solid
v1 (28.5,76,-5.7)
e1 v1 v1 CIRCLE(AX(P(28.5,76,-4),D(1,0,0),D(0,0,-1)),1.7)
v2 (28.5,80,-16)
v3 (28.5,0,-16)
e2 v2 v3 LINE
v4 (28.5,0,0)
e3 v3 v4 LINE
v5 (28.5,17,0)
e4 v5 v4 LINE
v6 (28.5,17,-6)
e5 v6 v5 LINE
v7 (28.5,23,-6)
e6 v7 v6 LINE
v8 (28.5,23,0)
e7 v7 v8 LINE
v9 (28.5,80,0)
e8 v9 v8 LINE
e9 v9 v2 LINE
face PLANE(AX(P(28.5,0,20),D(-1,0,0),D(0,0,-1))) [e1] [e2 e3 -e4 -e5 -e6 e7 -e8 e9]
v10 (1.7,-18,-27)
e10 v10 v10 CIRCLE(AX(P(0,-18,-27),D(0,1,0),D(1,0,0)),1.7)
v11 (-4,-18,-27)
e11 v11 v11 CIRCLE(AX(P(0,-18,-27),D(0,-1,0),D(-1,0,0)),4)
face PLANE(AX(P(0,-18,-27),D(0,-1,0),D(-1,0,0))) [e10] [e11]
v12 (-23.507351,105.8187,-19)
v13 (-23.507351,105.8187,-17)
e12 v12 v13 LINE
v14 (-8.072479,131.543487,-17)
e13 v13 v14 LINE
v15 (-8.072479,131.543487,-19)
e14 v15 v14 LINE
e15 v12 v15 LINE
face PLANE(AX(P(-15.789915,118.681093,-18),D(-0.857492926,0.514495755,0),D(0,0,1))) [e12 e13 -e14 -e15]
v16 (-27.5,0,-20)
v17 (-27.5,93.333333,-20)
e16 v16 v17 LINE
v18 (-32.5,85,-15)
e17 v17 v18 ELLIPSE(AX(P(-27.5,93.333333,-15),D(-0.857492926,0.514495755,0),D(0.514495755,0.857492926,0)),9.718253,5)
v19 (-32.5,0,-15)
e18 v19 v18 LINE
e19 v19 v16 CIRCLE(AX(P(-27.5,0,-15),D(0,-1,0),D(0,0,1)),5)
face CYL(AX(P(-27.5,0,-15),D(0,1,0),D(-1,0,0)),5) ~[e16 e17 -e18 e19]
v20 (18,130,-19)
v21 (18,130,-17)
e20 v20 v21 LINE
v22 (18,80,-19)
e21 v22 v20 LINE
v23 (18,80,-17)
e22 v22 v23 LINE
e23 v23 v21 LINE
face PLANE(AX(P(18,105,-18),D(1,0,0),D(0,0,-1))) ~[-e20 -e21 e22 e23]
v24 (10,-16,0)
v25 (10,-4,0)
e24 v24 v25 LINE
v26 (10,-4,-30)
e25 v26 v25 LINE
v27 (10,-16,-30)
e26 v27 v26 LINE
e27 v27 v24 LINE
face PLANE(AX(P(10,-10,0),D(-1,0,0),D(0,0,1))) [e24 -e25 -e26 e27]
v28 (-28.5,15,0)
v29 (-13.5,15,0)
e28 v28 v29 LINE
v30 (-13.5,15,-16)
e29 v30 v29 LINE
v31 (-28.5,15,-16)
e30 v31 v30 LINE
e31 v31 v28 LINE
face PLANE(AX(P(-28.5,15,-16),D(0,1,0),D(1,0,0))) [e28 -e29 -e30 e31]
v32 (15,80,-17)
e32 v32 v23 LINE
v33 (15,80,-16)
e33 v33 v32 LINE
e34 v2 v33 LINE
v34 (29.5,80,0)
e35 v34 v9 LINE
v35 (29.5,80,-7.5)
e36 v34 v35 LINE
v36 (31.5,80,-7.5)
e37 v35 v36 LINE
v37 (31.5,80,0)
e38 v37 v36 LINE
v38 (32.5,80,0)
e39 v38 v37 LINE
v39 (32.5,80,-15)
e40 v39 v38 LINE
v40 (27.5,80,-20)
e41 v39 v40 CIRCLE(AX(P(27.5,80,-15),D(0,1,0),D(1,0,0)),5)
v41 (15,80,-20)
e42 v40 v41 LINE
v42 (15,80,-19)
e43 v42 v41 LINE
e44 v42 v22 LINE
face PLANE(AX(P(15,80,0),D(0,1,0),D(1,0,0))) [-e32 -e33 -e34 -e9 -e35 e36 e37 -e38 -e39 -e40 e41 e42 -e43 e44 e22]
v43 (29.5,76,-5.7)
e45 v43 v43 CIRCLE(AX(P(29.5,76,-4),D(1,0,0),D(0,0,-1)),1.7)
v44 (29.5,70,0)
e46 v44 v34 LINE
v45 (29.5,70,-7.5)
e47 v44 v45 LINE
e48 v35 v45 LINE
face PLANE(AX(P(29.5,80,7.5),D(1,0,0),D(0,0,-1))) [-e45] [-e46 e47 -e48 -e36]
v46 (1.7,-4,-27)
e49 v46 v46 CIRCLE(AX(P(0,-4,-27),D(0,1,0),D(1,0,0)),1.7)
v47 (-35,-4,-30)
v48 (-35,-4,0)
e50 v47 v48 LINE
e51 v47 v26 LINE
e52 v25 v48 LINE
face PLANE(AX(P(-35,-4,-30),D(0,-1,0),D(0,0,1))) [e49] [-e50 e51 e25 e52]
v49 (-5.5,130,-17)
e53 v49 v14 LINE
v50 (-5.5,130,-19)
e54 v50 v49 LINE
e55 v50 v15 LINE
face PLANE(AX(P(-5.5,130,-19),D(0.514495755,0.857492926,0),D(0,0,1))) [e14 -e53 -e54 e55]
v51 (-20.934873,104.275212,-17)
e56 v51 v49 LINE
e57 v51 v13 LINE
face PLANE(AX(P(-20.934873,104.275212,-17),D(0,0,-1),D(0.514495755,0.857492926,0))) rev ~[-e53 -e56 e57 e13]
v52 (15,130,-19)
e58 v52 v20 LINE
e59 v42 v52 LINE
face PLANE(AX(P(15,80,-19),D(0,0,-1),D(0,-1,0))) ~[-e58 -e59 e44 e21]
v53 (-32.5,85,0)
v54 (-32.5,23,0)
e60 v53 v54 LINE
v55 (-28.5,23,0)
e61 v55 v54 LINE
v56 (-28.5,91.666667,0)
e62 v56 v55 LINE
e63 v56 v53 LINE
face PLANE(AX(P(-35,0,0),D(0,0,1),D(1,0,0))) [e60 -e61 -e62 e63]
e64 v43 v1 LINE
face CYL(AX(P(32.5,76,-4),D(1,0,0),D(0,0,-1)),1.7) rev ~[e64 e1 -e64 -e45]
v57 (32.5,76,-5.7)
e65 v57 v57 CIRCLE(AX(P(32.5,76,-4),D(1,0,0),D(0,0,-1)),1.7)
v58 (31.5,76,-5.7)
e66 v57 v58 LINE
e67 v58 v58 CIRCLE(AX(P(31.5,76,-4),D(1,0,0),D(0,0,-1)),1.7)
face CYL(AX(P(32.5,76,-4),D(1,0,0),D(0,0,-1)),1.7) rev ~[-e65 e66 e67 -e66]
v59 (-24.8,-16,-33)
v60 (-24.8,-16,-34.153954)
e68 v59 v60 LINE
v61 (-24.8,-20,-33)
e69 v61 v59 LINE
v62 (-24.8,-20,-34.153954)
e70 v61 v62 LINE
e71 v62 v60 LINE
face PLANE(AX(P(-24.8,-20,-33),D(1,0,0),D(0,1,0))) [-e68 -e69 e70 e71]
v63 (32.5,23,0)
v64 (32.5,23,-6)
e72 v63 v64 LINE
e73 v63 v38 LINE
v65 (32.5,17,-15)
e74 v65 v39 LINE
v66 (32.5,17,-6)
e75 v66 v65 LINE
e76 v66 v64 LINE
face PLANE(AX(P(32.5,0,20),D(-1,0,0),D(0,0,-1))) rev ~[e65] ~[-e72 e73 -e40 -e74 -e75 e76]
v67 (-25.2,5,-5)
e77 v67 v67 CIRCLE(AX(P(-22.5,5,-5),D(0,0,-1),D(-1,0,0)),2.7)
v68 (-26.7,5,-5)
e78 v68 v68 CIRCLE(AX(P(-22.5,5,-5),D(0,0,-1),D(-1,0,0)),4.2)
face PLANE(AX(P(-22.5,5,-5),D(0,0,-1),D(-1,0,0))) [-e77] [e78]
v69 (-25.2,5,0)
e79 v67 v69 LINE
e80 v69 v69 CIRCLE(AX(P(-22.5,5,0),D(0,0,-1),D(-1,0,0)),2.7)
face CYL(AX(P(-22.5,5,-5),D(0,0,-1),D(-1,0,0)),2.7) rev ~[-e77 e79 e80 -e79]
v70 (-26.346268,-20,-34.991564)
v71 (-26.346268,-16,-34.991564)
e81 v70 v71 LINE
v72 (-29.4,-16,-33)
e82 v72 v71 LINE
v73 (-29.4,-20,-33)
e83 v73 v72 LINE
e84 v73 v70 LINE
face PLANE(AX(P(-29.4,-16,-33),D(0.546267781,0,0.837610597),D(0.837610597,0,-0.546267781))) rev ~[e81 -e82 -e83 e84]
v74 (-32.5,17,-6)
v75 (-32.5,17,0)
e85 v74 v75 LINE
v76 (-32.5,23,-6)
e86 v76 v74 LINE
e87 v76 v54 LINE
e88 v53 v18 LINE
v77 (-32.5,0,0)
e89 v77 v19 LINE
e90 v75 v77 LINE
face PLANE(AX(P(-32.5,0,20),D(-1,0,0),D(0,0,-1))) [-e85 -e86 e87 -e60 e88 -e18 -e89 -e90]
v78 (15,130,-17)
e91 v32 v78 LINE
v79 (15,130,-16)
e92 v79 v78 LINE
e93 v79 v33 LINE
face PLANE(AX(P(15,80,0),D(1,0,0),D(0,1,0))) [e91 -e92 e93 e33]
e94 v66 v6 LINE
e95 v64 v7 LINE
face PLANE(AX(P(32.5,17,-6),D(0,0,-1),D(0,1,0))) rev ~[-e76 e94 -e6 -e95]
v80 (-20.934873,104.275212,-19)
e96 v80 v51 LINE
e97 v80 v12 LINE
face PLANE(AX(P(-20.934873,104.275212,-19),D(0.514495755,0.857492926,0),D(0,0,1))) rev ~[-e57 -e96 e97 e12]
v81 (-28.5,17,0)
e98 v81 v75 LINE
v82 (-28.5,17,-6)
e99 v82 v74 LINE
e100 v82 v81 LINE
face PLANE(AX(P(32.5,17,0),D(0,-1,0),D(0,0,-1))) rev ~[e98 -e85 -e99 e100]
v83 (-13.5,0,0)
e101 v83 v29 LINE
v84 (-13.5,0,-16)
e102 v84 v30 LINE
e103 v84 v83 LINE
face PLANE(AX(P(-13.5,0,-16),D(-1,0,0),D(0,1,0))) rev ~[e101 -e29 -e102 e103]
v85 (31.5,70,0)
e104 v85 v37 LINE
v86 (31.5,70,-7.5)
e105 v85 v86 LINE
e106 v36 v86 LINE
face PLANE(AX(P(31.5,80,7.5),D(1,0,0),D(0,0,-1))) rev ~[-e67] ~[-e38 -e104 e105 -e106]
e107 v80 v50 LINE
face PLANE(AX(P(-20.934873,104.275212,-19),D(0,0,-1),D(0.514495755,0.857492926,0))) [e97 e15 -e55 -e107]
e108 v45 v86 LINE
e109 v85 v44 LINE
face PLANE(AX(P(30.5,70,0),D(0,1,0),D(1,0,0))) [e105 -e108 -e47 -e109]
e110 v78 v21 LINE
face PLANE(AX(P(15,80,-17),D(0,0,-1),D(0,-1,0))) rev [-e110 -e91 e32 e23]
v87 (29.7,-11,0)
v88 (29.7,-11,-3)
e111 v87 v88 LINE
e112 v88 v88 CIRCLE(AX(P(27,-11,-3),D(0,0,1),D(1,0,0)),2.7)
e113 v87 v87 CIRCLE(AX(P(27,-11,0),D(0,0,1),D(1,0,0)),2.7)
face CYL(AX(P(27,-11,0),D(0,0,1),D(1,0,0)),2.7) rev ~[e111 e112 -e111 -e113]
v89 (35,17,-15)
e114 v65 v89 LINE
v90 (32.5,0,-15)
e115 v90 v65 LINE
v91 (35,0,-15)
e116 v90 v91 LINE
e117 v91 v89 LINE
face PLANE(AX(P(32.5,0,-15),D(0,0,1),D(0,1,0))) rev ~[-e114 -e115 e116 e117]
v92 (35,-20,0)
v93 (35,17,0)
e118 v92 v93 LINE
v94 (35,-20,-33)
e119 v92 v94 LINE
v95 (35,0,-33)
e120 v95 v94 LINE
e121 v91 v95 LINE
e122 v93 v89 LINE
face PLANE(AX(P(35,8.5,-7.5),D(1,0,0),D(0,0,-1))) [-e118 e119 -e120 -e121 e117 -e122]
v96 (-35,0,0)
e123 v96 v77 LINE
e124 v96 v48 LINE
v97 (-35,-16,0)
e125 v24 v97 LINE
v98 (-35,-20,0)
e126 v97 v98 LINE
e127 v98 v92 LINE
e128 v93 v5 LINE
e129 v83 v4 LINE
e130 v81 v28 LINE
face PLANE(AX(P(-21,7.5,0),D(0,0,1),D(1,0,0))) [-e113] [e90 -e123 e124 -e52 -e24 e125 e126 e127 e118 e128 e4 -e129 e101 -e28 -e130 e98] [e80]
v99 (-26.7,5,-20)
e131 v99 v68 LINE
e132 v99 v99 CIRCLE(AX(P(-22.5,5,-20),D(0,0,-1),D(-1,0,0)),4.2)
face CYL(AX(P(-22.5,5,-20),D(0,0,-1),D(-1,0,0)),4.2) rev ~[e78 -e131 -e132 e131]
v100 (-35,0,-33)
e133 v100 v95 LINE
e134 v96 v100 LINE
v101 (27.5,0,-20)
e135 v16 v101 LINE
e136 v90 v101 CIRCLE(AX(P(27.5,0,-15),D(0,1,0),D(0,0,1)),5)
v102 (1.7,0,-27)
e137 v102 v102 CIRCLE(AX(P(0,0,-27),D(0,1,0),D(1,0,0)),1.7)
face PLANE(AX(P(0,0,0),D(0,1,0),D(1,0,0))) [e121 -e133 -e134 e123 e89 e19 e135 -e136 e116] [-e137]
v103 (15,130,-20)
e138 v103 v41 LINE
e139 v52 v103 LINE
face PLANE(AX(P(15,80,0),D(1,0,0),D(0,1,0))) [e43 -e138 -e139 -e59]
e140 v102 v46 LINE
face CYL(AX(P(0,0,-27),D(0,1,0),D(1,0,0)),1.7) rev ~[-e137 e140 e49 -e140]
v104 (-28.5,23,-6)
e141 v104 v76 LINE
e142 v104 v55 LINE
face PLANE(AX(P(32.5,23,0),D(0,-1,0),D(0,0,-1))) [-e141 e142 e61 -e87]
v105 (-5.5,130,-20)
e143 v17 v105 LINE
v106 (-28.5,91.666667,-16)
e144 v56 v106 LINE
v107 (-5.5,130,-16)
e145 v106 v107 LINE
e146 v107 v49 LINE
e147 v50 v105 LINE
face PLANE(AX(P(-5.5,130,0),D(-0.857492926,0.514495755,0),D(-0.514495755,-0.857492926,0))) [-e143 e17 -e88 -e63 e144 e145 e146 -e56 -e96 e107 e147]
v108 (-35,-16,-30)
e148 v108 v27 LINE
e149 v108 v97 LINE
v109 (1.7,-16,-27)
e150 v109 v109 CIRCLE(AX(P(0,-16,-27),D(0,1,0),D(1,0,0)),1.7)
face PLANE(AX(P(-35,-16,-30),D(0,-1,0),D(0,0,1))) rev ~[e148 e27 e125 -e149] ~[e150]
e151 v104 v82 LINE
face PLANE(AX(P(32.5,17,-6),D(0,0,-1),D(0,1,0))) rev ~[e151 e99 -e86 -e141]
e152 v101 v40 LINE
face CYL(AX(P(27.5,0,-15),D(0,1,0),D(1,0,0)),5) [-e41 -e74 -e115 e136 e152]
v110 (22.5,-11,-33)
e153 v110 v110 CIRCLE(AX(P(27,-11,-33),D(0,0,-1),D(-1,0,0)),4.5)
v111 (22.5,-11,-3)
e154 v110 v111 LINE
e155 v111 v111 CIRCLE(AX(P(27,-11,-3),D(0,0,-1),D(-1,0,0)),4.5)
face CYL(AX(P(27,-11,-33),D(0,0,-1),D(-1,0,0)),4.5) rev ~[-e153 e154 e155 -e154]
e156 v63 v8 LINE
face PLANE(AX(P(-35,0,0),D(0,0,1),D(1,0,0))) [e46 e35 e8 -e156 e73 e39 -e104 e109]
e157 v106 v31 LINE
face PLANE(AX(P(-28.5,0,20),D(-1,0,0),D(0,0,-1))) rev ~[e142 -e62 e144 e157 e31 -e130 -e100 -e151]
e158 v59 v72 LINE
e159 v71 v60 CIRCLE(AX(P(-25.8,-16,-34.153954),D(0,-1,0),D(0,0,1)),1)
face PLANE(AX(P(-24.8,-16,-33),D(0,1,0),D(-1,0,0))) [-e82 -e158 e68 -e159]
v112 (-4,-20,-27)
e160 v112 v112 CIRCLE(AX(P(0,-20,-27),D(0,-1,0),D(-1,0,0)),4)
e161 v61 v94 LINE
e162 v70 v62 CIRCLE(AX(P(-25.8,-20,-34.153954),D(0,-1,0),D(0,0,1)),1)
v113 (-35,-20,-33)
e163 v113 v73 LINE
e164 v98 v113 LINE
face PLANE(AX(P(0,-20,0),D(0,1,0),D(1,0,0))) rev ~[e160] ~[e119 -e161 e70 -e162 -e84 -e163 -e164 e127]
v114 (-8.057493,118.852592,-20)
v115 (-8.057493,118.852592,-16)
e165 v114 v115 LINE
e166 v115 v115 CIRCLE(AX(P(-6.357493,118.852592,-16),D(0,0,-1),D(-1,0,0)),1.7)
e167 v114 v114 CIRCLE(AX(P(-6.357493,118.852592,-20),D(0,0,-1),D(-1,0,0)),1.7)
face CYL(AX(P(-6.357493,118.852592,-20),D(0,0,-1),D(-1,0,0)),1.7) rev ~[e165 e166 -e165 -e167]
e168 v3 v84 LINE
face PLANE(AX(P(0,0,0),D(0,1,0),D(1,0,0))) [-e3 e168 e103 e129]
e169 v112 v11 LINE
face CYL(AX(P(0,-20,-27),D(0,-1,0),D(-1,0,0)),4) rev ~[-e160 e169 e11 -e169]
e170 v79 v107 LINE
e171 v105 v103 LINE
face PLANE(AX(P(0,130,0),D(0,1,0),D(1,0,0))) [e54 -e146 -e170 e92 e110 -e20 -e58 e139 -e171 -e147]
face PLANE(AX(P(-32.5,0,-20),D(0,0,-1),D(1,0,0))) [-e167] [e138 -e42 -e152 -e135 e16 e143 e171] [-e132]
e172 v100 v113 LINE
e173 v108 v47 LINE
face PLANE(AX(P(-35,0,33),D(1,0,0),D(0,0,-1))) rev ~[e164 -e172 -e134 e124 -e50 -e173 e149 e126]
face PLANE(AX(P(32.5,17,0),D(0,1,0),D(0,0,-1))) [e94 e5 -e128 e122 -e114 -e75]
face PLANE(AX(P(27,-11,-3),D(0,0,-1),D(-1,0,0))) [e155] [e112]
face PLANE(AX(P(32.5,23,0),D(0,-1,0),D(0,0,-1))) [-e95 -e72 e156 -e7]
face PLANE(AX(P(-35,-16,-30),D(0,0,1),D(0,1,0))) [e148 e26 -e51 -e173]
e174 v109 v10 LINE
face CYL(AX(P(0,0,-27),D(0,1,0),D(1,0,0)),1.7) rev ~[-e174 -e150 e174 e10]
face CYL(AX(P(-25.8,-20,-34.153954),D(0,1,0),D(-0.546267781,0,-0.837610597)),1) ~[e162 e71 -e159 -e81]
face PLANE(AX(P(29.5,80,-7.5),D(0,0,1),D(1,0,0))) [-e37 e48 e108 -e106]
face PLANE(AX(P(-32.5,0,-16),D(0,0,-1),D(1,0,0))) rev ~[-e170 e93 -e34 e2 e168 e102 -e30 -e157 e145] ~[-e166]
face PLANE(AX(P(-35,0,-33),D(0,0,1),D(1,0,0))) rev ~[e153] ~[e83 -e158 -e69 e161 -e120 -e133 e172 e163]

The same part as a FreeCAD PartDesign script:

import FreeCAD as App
import Part
import Sketcher

V = App.Vector
Q = App.Units.Quantity


def edges_at(feature, points):
    """Names of the edges that pass closest to the given points."""
    edges = feature.Shape.Edges
    near = lambda p: min(range(len(edges)), key=lambda i: edges[i].distToShape(Part.Vertex(*p))[0])
    return sorted({f"Edge{near(p) + 1}" for p in points})


def faces_at(feature, points):
    """Names of the faces that lie closest to the given points."""
    faces = feature.Shape.Faces
    near = lambda p: min(range(len(faces)), key=lambda i: faces[i].distToShape(Part.Vertex(*p))[0])
    return sorted({f"Face{near(p) + 1}" for p in points})

doc = App.newDocument("Part")
body = doc.addObject("PartDesign::Body", "Body")

# Sketch on XZ plane
sketch1 = body.newObject("Sketcher::SketchObject", "Sketch")
sketch1.AttachmentSupport = (doc.getObject("XZ_Plane"), [""])
sketch1.MapMode = "FlatFace"
sketch1.addGeometry([
    Part.LineSegment(V(-32, -20, 0), V(-32, 20, 0)),
    Part.LineSegment(V(-32, 20, 0), V(32, 20, 0)),
    Part.LineSegment(V(32, 20, 0), V(32, -20, 0)),
    Part.LineSegment(V(32, -20, 0), V(-32, -20, 0)),
], False)
sketch1.addConstraint([
    Sketcher.Constraint("Coincident", 0, 2, 1, 1),
    Sketcher.Constraint("Coincident", 1, 2, 2, 1),
    Sketcher.Constraint("Coincident", 2, 2, 3, 1),
    Sketcher.Constraint("Coincident", 3, 2, 0, 1),
    Sketcher.Constraint("Vertical", 0),
    Sketcher.Constraint("Horizontal", 1),
    Sketcher.Constraint("Vertical", 2),
    Sketcher.Constraint("Horizontal", 3),
    Sketcher.Constraint("Symmetric", 0, 2, 2, 2, -1, 1),
    Sketcher.Constraint("DistanceX", 1, 1, 1, 2, Q("65 mm")),
    Sketcher.Constraint("DistanceY", 0, 1, 0, 2, Q("40 mm")),
])
pad1 = body.newObject("PartDesign::Pad", "Pad")
pad1.Profile = sketch1
pad1.Length = 130
pad1.Reversed = True
doc.recompute()

thickness = body.newObject("PartDesign::Thickness", "Thickness")
thickness.Base = (pad1, faces_at(pad1, [(0, 130, 0), (0, 0, 0)]))
thickness.Value = 4
thickness.Reversed = True
thickness.Join = "Intersection"
doc.recompute()

fillet = body.newObject("PartDesign::Fillet", "Fillet")
fillet.Base = (thickness, edges_at(thickness, [
    (32.5, 65, 20),
    (-32.5, 65, 20),
    (-32.5, 65, -20),
    (32.5, 65, -20),
]))
fillet.Radius = 5

# Sketch on XY plane
sketch2 = body.newObject("Sketcher::SketchObject", "Sketch001")
sketch2.AttachmentSupport = (doc.getObject("XY_Plane"), [""])
sketch2.MapMode = "FlatFace"
sketch2.addGeometry([
    Part.LineSegment(V(-32, 85, 0), V(-6, 130, 0)),
    Part.LineSegment(V(-6, 130, 0), V(-32, 130, 0)),
    Part.LineSegment(V(-32, 130, 0), V(-32, 85, 0)),
], False)
sketch2.addConstraint([
    Sketcher.Constraint("Coincident", 0, 2, 1, 1),
    Sketcher.Constraint("Coincident", 1, 2, 2, 1),
    Sketcher.Constraint("Coincident", 2, 2, 0, 1),
    Sketcher.Constraint("Horizontal", 1),
    Sketcher.Constraint("Vertical", 2),
    Sketcher.Constraint("DistanceX", 1, 2, 1, 1, Q("27 mm")),
    Sketcher.Constraint("DistanceY", 2, 2, 2, 1, Q("45 mm")),
    Sketcher.Constraint("DistanceY", -1, 1, 0, 2, Q("130 mm")),
    Sketcher.Constraint("DistanceX", 0, 2, -1, 1, Q("5.5 mm")),
])
pocket1 = body.newObject("PartDesign::Pocket", "Pocket")
pocket1.Profile = sketch2
pocket1.Type = "ThroughAll"
pocket1.Midplane = True

# Sketch on XY plane
sketch3 = body.newObject("Sketcher::SketchObject", "Sketch002")
sketch3.AttachmentSupport = (doc.getObject("XY_Plane"), [""])
sketch3.MapMode = "FlatFace"
sketch3.addGeometry([
    Part.LineSegment(V(15, 130, 0), V(15, 80, 0)),
    Part.LineSegment(V(15, 80, 0), V(32, 80, 0)),
    Part.LineSegment(V(32, 80, 0), V(32, 130, 0)),
    Part.LineSegment(V(32, 130, 0), V(15, 130, 0)),
], False)
sketch3.addConstraint([
    Sketcher.Constraint("Coincident", 0, 2, 1, 1),
    Sketcher.Constraint("Coincident", 1, 2, 2, 1),
    Sketcher.Constraint("Coincident", 2, 2, 3, 1),
    Sketcher.Constraint("Coincident", 3, 2, 0, 1),
    Sketcher.Constraint("Vertical", 0),
    Sketcher.Constraint("Horizontal", 1),
    Sketcher.Constraint("Vertical", 2),
    Sketcher.Constraint("Horizontal", 3),
    Sketcher.Constraint("DistanceY", 0, 2, 0, 1, Q("50 mm")),
    Sketcher.Constraint("DistanceX", 1, 1, 1, 2, Q("17.5 mm")),
    Sketcher.Constraint("DistanceX", -1, 1, 0, 2, Q("15 mm")),
    Sketcher.Constraint("DistanceY", -1, 1, 0, 2, Q("80 mm")),
])
pocket2 = body.newObject("PartDesign::Pocket", "Pocket001")
pocket2.Profile = sketch3
pocket2.Type = "ThroughAll"
pocket2.Midplane = True

# Sketch on YZ plane
sketch4 = body.newObject("Sketcher::SketchObject", "Sketch003")
sketch4.AttachmentSupport = (doc.getObject("YZ_Plane"), [""])
sketch4.MapMode = "FlatFace"
sketch4.AttachmentOffset = App.Placement(V(0, 0, 15), App.Rotation())
sketch4.addGeometry([
    Part.LineSegment(V(130, 19, 0), V(80, 19, 0)),
    Part.LineSegment(V(80, 19, 0), V(80, 17, 0)),
    Part.LineSegment(V(80, 17, 0), V(130, 17, 0)),
    Part.LineSegment(V(130, 17, 0), V(130, 19, 0)),
], False)
sketch4.addConstraint([
    Sketcher.Constraint("Coincident", 0, 2, 1, 1),
    Sketcher.Constraint("Coincident", 1, 2, 2, 1),
    Sketcher.Constraint("Coincident", 2, 2, 3, 1),
    Sketcher.Constraint("Coincident", 3, 2, 0, 1),
    Sketcher.Constraint("Horizontal", 0),
    Sketcher.Constraint("Vertical", 1),
    Sketcher.Constraint("Horizontal", 2),
    Sketcher.Constraint("Vertical", 3),
    Sketcher.Constraint("DistanceX", 0, 2, 0, 1, Q("50 mm")),
    Sketcher.Constraint("DistanceY", 1, 2, 1, 1, Q("2 mm")),
    Sketcher.Constraint("DistanceX", -1, 1, 0, 2, Q("80 mm")),
    Sketcher.Constraint("DistanceY", -1, 1, 0, 2, Q("19 mm")),
])
pad2 = body.newObject("PartDesign::Pad", "Pad001")
pad2.Profile = sketch4
pad2.Length = 3
doc.recompute()

mirrored = body.newObject("PartDesign::Mirrored", "Mirrored")
mirrored.Originals = [pad2]
mirrored.MirrorPlane = (doc.getObject("XY_Plane"), [""])
body.Tip = mirrored

# Sketch on an angled plane
sketch5 = body.newObject("Sketcher::SketchObject", "Sketch004")
sketch5.Placement = App.Placement(V(-61.397059, 36.838235, 0), App.Rotation(V(0, 0, 1), V(0.514495755, 0.857492926, 0), V(-0.857492926, 0.514495755, 0), "ZXY"))
sketch5.addGeometry([
    Part.LineSegment(V(-19, 108.6, 0), V(-19, 78.6, 0)),
    Part.LineSegment(V(-19, 78.6, 0), V(-17, 78.6, 0)),
    Part.LineSegment(V(-17, 78.6, 0), V(-17, 108.6, 0)),
    Part.LineSegment(V(-17, 108.6, 0), V(-19, 108.6, 0)),
], False)
sketch5.addConstraint([
    Sketcher.Constraint("Coincident", 0, 2, 1, 1),
    Sketcher.Constraint("Coincident", 1, 2, 2, 1),
    Sketcher.Constraint("Coincident", 2, 2, 3, 1),
    Sketcher.Constraint("Coincident", 3, 2, 0, 1),
    Sketcher.Constraint("Vertical", 0),
    Sketcher.Constraint("Horizontal", 1),
    Sketcher.Constraint("Vertical", 2),
    Sketcher.Constraint("Horizontal", 3),
    Sketcher.Constraint("DistanceX", 1, 1, 1, 2, Q("2 mm")),
    Sketcher.Constraint("DistanceY", 0, 2, 0, 1, Q("30 mm")),
    Sketcher.Constraint("DistanceX", 0, 2, -1, 1, Q("19 mm")),
    Sketcher.Constraint("DistanceY", -1, 1, 0, 2, Q("78.644354 mm")),
])
pad3 = body.newObject("PartDesign::Pad", "Pad002")
pad3.Profile = sketch5
pad3.Length = 3
doc.recompute()

mirrored2 = body.newObject("PartDesign::Mirrored", "Mirrored001")
mirrored2.Originals = [pad3]
mirrored2.MirrorPlane = (doc.getObject("XY_Plane"), [""])
body.Tip = mirrored2

# Sketch on XZ plane
sketch6 = body.newObject("Sketcher::SketchObject", "Sketch005")
sketch6.AttachmentSupport = (doc.getObject("XZ_Plane"), [""])
sketch6.MapMode = "FlatFace"
sketch6.addGeometry([
    Part.LineSegment(V(-35, -33, 0), V(-35, 33, 0)),
    Part.LineSegment(V(-35, 33, 0), V(35, 33, 0)),
    Part.LineSegment(V(35, 33, 0), V(35, -33, 0)),
    Part.LineSegment(V(35, -33, 0), V(-35, -33, 0)),
], False)
sketch6.addConstraint([
    Sketcher.Constraint("Coincident", 0, 2, 1, 1),
    Sketcher.Constraint("Coincident", 1, 2, 2, 1),
    Sketcher.Constraint("Coincident", 2, 2, 3, 1),
    Sketcher.Constraint("Coincident", 3, 2, 0, 1),
    Sketcher.Constraint("Vertical", 0),
    Sketcher.Constraint("Horizontal", 1),
    Sketcher.Constraint("Vertical", 2),
    Sketcher.Constraint("Horizontal", 3),
    Sketcher.Constraint("Symmetric", 0, 2, 2, 2, -1, 1),
    Sketcher.Constraint("DistanceX", 1, 1, 1, 2, Q("70 mm")),
    Sketcher.Constraint("DistanceY", 0, 1, 0, 2, Q("66 mm")),
])
pad4 = body.newObject("PartDesign::Pad", "Pad003")
pad4.Profile = sketch6
pad4.Length = 20

# Sketch on YZ plane
sketch7 = body.newObject("Sketcher::SketchObject", "Sketch006")
sketch7.AttachmentSupport = (doc.getObject("YZ_Plane"), [""])
sketch7.MapMode = "FlatFace"
sketch7.AttachmentOffset = App.Placement(V(0, 0, -35), App.Rotation())
sketch7.addGeometry([
    Part.LineSegment(V(-4, -30, 0), V(-16, -30, 0)),
    Part.LineSegment(V(-16, -30, 0), V(-16, 30, 0)),
    Part.LineSegment(V(-16, 30, 0), V(-4, 30, 0)),
    Part.LineSegment(V(-4, 30, 0), V(-4, -30, 0)),
], False)
sketch7.addConstraint([
    Sketcher.Constraint("Coincident", 0, 2, 1, 1),
    Sketcher.Constraint("Coincident", 1, 2, 2, 1),
    Sketcher.Constraint("Coincident", 2, 2, 3, 1),
    Sketcher.Constraint("Coincident", 3, 2, 0, 1),
    Sketcher.Constraint("Horizontal", 0),
    Sketcher.Constraint("Vertical", 1),
    Sketcher.Constraint("Horizontal", 2),
    Sketcher.Constraint("Vertical", 3),
    Sketcher.Constraint("DistanceX", 0, 2, 0, 1, Q("12 mm")),
    Sketcher.Constraint("DistanceY", 1, 1, 1, 2, Q("60 mm")),
    Sketcher.Constraint("DistanceX", 0, 2, -1, 1, Q("16 mm")),
    Sketcher.Constraint("DistanceY", 0, 2, -1, 1, Q("30 mm")),
])
pocket3 = body.newObject("PartDesign::Pocket", "Pocket002")
pocket3.Profile = sketch7
pocket3.Length = 45
pocket3.Reversed = True

# Sketch on XZ plane
sketch8 = body.newObject("Sketcher::SketchObject", "Sketch007")
sketch8.AttachmentSupport = (doc.getObject("XZ_Plane"), [""])
sketch8.MapMode = "FlatFace"
sketch8.AttachmentOffset = App.Placement(V(0, 0, -80), App.Rotation())
sketch8.addGeometry([
    Part.LineSegment(V(29.5, -7.5, 0), V(29.5, 7.5, 0)),
    Part.LineSegment(V(29.5, 7.5, 0), V(31.5, 7.5, 0)),
    Part.LineSegment(V(31.5, 7.5, 0), V(31.5, -7.5, 0)),
    Part.LineSegment(V(31.5, -7.5, 0), V(29.5, -7.5, 0)),
], False)
sketch8.addConstraint([
    Sketcher.Constraint("Coincident", 0, 2, 1, 1),
    Sketcher.Constraint("Coincident", 1, 2, 2, 1),
    Sketcher.Constraint("Coincident", 2, 2, 3, 1),
    Sketcher.Constraint("Coincident", 3, 2, 0, 1),
    Sketcher.Constraint("Vertical", 0),
    Sketcher.Constraint("Horizontal", 1),
    Sketcher.Constraint("Vertical", 2),
    Sketcher.Constraint("Horizontal", 3),
    Sketcher.Constraint("DistanceX", 1, 1, 1, 2, Q("2 mm")),
    Sketcher.Constraint("DistanceY", 0, 1, 0, 2, Q("15 mm")),
    Sketcher.Constraint("DistanceX", -1, 1, 0, 2, Q("29.5 mm")),
    Sketcher.Constraint("DistanceY", -1, 1, 0, 2, Q("7.5 mm")),
])
pocket4 = body.newObject("PartDesign::Pocket", "Pocket003")
pocket4.Profile = sketch8
pocket4.Length = 10
pocket4.Reversed = True

# Sketch on XZ plane
sketch9 = body.newObject("Sketcher::SketchObject", "Sketch008")
sketch9.AttachmentSupport = (doc.getObject("XZ_Plane"), [""])
sketch9.MapMode = "FlatFace"
sketch9.addGeometry([
    Part.LineSegment(V(-35, 0, 0), V(-35, 33, 0)),
    Part.LineSegment(V(-35, 33, 0), V(35, 33, 0)),
    Part.LineSegment(V(35, 33, 0), V(35, 0, 0)),
    Part.LineSegment(V(35, 0, 0), V(-35, 0, 0)),
], False)
sketch9.addConstraint([
    Sketcher.Constraint("Coincident", 0, 2, 1, 1),
    Sketcher.Constraint("Coincident", 1, 2, 2, 1),
    Sketcher.Constraint("Coincident", 2, 2, 3, 1),
    Sketcher.Constraint("Coincident", 3, 2, 0, 1),
    Sketcher.Constraint("Vertical", 0),
    Sketcher.Constraint("Horizontal", 1),
    Sketcher.Constraint("Vertical", 2),
    Sketcher.Constraint("Horizontal", 3),
    Sketcher.Constraint("Symmetric", 2, 2, 3, 2, -1, 1),
    Sketcher.Constraint("DistanceX", 1, 1, 1, 2, Q("70 mm")),
    Sketcher.Constraint("DistanceY", 0, 1, 0, 2, Q("33 mm")),
])
pocket5 = body.newObject("PartDesign::Pocket", "Pocket004")
pocket5.Profile = sketch9
pocket5.Type = "ThroughAll"
pocket5.Midplane = True

# Sketch on XY plane
sketch10 = body.newObject("Sketcher::SketchObject", "Sketch009")
sketch10.AttachmentSupport = (doc.getObject("XY_Plane"), [""])
sketch10.MapMode = "FlatFace"
sketch10.addGeometry(Part.Circle(V(27, -11, 0), V(0, 0, 1), 2.7), False)
sketch10.addConstraint([
    Sketcher.Constraint("Diameter", 0, Q("5.4 mm")),
    Sketcher.Constraint("DistanceX", -1, 1, 0, 3, Q("27 mm")),
    Sketcher.Constraint("DistanceY", 0, 3, -1, 1, Q("11 mm")),
])
pocket6 = body.newObject("PartDesign::Pocket", "Pocket005")
pocket6.Profile = sketch10
pocket6.Type = "ThroughAll"
pocket6.Midplane = True

# Sketch on XY plane
sketch11 = body.newObject("Sketcher::SketchObject", "Sketch010")
sketch11.AttachmentSupport = (doc.getObject("XY_Plane"), [""])
sketch11.MapMode = "FlatFace"
sketch11.AttachmentOffset = App.Placement(V(0, 0, -33), App.Rotation())
sketch11.addGeometry(Part.Circle(V(27, -11, 0), V(0, 0, 1), 4.5), False)
sketch11.addConstraint([
    Sketcher.Constraint("Diameter", 0, Q("9 mm")),
    Sketcher.Constraint("DistanceX", -1, 1, 0, 3, Q("27 mm")),
    Sketcher.Constraint("DistanceY", 0, 3, -1, 1, Q("11 mm")),
])
pocket7 = body.newObject("PartDesign::Pocket", "Pocket006")
pocket7.Profile = sketch11
pocket7.Length = 30
pocket7.Reversed = True

# Sketch on XZ plane
sketch12 = body.newObject("Sketcher::SketchObject", "Sketch011")
sketch12.AttachmentSupport = (doc.getObject("XZ_Plane"), [""])
sketch12.MapMode = "FlatFace"
sketch12.addGeometry(Part.Circle(V(0, -27, 0), V(0, 0, 1), 1.7), False)
sketch12.addConstraint([
    Sketcher.Constraint("PointOnObject", 0, 3, -2),
    Sketcher.Constraint("Diameter", 0, Q("3.4 mm")),
    Sketcher.Constraint("DistanceY", 0, 3, -1, 1, Q("27 mm")),
])
pocket8 = body.newObject("PartDesign::Pocket", "Pocket007")
pocket8.Profile = sketch12
pocket8.Type = "ThroughAll"
pocket8.Midplane = True

# Sketch on XZ plane
sketch13 = body.newObject("Sketcher::SketchObject", "Sketch012")
sketch13.AttachmentSupport = (doc.getObject("XZ_Plane"), [""])
sketch13.MapMode = "FlatFace"
sketch13.AttachmentOffset = App.Placement(V(0, 0, 20), App.Rotation())
sketch13.addGeometry(Part.Circle(V(0, -27, 0), V(0, 0, 1), 4), False)
sketch13.addConstraint([
    Sketcher.Constraint("PointOnObject", 0, 3, -2),
    Sketcher.Constraint("Diameter", 0, Q("8 mm")),
    Sketcher.Constraint("DistanceY", 0, 3, -1, 1, Q("27 mm")),
])
pocket9 = body.newObject("PartDesign::Pocket", "Pocket008")
pocket9.Profile = sketch13
pocket9.Length = 2

# Sketch on YZ plane
sketch14 = body.newObject("Sketcher::SketchObject", "Sketch013")
sketch14.AttachmentSupport = (doc.getObject("YZ_Plane"), [""])
sketch14.MapMode = "FlatFace"
sketch14.AttachmentOffset = App.Placement(V(0, 0, 32.5), App.Rotation())
sketch14.addGeometry([
    Part.LineSegment(V(23, 0, 0), V(17, 0, 0)),
    Part.LineSegment(V(17, 0, 0), V(17, -6, 0)),
    Part.LineSegment(V(17, -6, 0), V(23, -6, 0)),
    Part.LineSegment(V(23, -6, 0), V(23, 0, 0)),
], False)
sketch14.addConstraint([
    Sketcher.Constraint("Coincident", 0, 2, 1, 1),
    Sketcher.Constraint("Coincident", 1, 2, 2, 1),
    Sketcher.Constraint("Coincident", 2, 2, 3, 1),
    Sketcher.Constraint("Coincident", 3, 2, 0, 1),
    Sketcher.Constraint("Horizontal", 0),
    Sketcher.Constraint("Vertical", 1),
    Sketcher.Constraint("Horizontal", 2),
    Sketcher.Constraint("Vertical", 3),
    Sketcher.Constraint("PointOnObject", 0, 2, -1),
    Sketcher.Constraint("Equal", 2, 1),
    Sketcher.Constraint("DistanceX", 0, 2, 0, 1, Q("6 mm")),
    Sketcher.Constraint("DistanceX", -1, 1, 0, 2, Q("17 mm")),
])
pocket10 = body.newObject("PartDesign::Pocket", "Pocket009")
pocket10.Profile = sketch14
pocket10.Type = "ThroughAll"
pocket10.Midplane = True

# Sketch on YZ plane
sketch15 = body.newObject("Sketcher::SketchObject", "Sketch014")
sketch15.AttachmentSupport = (doc.getObject("YZ_Plane"), [""])
sketch15.MapMode = "FlatFace"
sketch15.AttachmentOffset = App.Placement(V(0, 0, 32.5), App.Rotation())
sketch15.addGeometry([
    Part.LineSegment(V(17, 0, 0), V(0, 0, 0)),
    Part.LineSegment(V(0, 0, 0), V(0, -15, 0)),
    Part.LineSegment(V(0, -15, 0), V(17, -15, 0)),
    Part.LineSegment(V(17, -15, 0), V(17, 0, 0)),
], False)
sketch15.addConstraint([
    Sketcher.Constraint("Coincident", 0, 2, 1, 1),
    Sketcher.Constraint("Coincident", 1, 2, 2, 1),
    Sketcher.Constraint("Coincident", 2, 2, 3, 1),
    Sketcher.Constraint("Coincident", 3, 2, 0, 1),
    Sketcher.Constraint("Horizontal", 0),
    Sketcher.Constraint("Vertical", 1),
    Sketcher.Constraint("Horizontal", 2),
    Sketcher.Constraint("Vertical", 3),
    Sketcher.Constraint("Coincident", 0, 2, -1, 1),
    Sketcher.Constraint("DistanceX", 0, 2, 0, 1, Q("17 mm")),
    Sketcher.Constraint("DistanceY", 1, 2, 1, 1, Q("15 mm")),
])
pad5 = body.newObject("PartDesign::Pad", "Pad004")
pad5.Profile = sketch15
pad5.Length = 2.5

# Sketch on YZ plane
sketch16 = body.newObject("Sketcher::SketchObject", "Sketch015")
sketch16.AttachmentSupport = (doc.getObject("YZ_Plane"), [""])
sketch16.MapMode = "FlatFace"
sketch16.AttachmentOffset = App.Placement(V(0, 0, 32.5), App.Rotation())
sketch16.addGeometry(Part.Circle(V(76, -4, 0), V(0, 0, 1), 1.7), False)
sketch16.addConstraint([
    Sketcher.Constraint("Diameter", 0, Q("3.4 mm")),
    Sketcher.Constraint("DistanceX", -1, 1, 0, 3, Q("76 mm")),
    Sketcher.Constraint("DistanceY", 0, 3, -1, 1, Q("4 mm")),
])
pocket11 = body.newObject("PartDesign::Pocket", "Pocket010")
pocket11.Profile = sketch16
pocket11.Type = "TwoLengths"
pocket11.Length = 3.5
pocket11.Length2 = 10
pocket11.Reversed = True

# Sketch on XY plane
sketch17 = body.newObject("Sketcher::SketchObject", "Sketch016")
sketch17.AttachmentSupport = (doc.getObject("XY_Plane"), [""])
sketch17.MapMode = "FlatFace"
sketch17.AttachmentOffset = App.Placement(V(0, 0, -33), App.Rotation())
sketch17.addGeometry([
    Part.LineSegment(V(-24.8, -16, 0), V(-24.8, -20, 0)),
    Part.LineSegment(V(-24.8, -20, 0), V(-29.4, -20, 0)),
    Part.LineSegment(V(-29.4, -20, 0), V(-29.4, -16, 0)),
    Part.LineSegment(V(-29.4, -16, 0), V(-24.8, -16, 0)),
], False)
sketch17.addConstraint([
    Sketcher.Constraint("Coincident", 0, 2, 1, 1),
    Sketcher.Constraint("Coincident", 1, 2, 2, 1),
    Sketcher.Constraint("Coincident", 2, 2, 3, 1),
    Sketcher.Constraint("Coincident", 3, 2, 0, 1),
    Sketcher.Constraint("Vertical", 0),
    Sketcher.Constraint("Horizontal", 1),
    Sketcher.Constraint("Vertical", 2),
    Sketcher.Constraint("Horizontal", 3),
    Sketcher.Constraint("DistanceY", 0, 2, 0, 1, Q("4 mm")),
    Sketcher.Constraint("DistanceX", 1, 2, 1, 1, Q("4.6 mm")),
    Sketcher.Constraint("DistanceY", 0, 2, -1, 1, Q("20 mm")),
    Sketcher.Constraint("DistanceX", 0, 2, -1, 1, Q("24.8 mm")),
])
pad6 = body.newObject("PartDesign::Pad", "Pad005")
pad6.Profile = sketch17
pad6.Length = 3
pad6.Reversed = True

# Sketch on XZ plane
sketch18 = body.newObject("Sketcher::SketchObject", "Sketch017")
sketch18.AttachmentSupport = (doc.getObject("XZ_Plane"), [""])
sketch18.MapMode = "FlatFace"
sketch18.AttachmentOffset = App.Placement(V(0, 0, 16), App.Rotation())
sketch18.addGeometry([
    Part.LineSegment(V(-29.4, -33, 0), V(-24.8, -36, 0)),
    Part.LineSegment(V(-24.8, -36, 0), V(-29.4, -36, 0)),
    Part.LineSegment(V(-29.4, -36, 0), V(-29.4, -33, 0)),
], False)
sketch18.addConstraint([
    Sketcher.Constraint("Coincident", 0, 2, 1, 1),
    Sketcher.Constraint("Coincident", 1, 2, 2, 1),
    Sketcher.Constraint("Coincident", 2, 2, 0, 1),
    Sketcher.Constraint("Horizontal", 1),
    Sketcher.Constraint("Vertical", 2),
    Sketcher.Constraint("DistanceY", 2, 1, 2, 2, Q("3 mm")),
    Sketcher.Constraint("DistanceX", 1, 2, 1, 1, Q("4.6 mm")),
    Sketcher.Constraint("DistanceY", 0, 2, -1, 1, Q("36 mm")),
    Sketcher.Constraint("DistanceX", 0, 2, -1, 1, Q("24.8 mm")),
])
pocket12 = body.newObject("PartDesign::Pocket", "Pocket011")
pocket12.Profile = sketch18
pocket12.Type = "ThroughAll"
pocket12.Reversed = True
doc.recompute()

fillet2 = body.newObject("PartDesign::Fillet", "Fillet001")
fillet2.Base = (pocket12, edges_at(pocket12, [(-24.8, -18, -36)]))
fillet2.Radius = 1

# Sketch on XY plane
sketch19 = body.newObject("Sketcher::SketchObject", "Sketch018")
sketch19.AttachmentSupport = (doc.getObject("XY_Plane"), [""])
sketch19.MapMode = "FlatFace"
sketch19.AttachmentOffset = App.Placement(V(0, 0, -20), App.Rotation())
sketch19.addGeometry(Part.Circle(V(-6.4, 118.9, 0), V(0, 0, 1), 1.7), False)
sketch19.addConstraint([
    Sketcher.Constraint("Diameter", 0, Q("3.4 mm")),
    Sketcher.Constraint("DistanceY", -1, 1, 0, 3, Q("118.852592 mm")),
    Sketcher.Constraint("DistanceX", 0, 3, -1, 1, Q("6.357493 mm")),
])
pocket13 = body.newObject("PartDesign::Pocket", "Pocket012")
pocket13.Profile = sketch19
pocket13.Type = "ThroughAll"
pocket13.Midplane = True

# Sketch on XY plane
sketch20 = body.newObject("Sketcher::SketchObject", "Sketch019")
sketch20.AttachmentSupport = (doc.getObject("XY_Plane"), [""])
sketch20.MapMode = "FlatFace"
sketch20.AttachmentOffset = App.Placement(V(0, 0, -16), App.Rotation())
sketch20.addGeometry([
    Part.LineSegment(V(-28, 15, 0), V(-28, 0, 0)),
    Part.LineSegment(V(-28, 0, 0), V(-14, 0, 0)),
    Part.LineSegment(V(-14, 0, 0), V(-14, 15, 0)),
    Part.LineSegment(V(-14, 15, 0), V(-28, 15, 0)),
], False)
sketch20.addConstraint([
    Sketcher.Constraint("Coincident", 0, 2, 1, 1),
    Sketcher.Constraint("Coincident", 1, 2, 2, 1),
    Sketcher.Constraint("Coincident", 2, 2, 3, 1),
    Sketcher.Constraint("Coincident", 3, 2, 0, 1),
    Sketcher.Constraint("Vertical", 0),
    Sketcher.Constraint("Horizontal", 1),
    Sketcher.Constraint("Vertical", 2),
    Sketcher.Constraint("Horizontal", 3),
    Sketcher.Constraint("PointOnObject", 0, 2, -1),
    Sketcher.Constraint("Equal", 3, 0),
    Sketcher.Constraint("DistanceX", 1, 1, 1, 2, Q("15 mm")),
    Sketcher.Constraint("DistanceX", 0, 2, -1, 1, Q("28.5 mm")),
])
pad7 = body.newObject("PartDesign::Pad", "Pad006")
pad7.Profile = sketch20
pad7.Length = 16

# Sketch on XY plane
sketch21 = body.newObject("Sketcher::SketchObject", "Sketch020")
sketch21.AttachmentSupport = (doc.getObject("XY_Plane"), [""])
sketch21.MapMode = "FlatFace"
sketch21.AttachmentOffset = App.Placement(V(0, 0, -20), App.Rotation())
sketch21.addGeometry(Part.Circle(V(-22.5, 5, 0), V(0, 0, 1), 4.2), False)
sketch21.addConstraint([
    Sketcher.Constraint("Diameter", 0, Q("8.4 mm")),
    Sketcher.Constraint("DistanceY", -1, 1, 0, 3, Q("5 mm")),
    Sketcher.Constraint("DistanceX", 0, 3, -1, 1, Q("22.5 mm")),
])
pocket14 = body.newObject("PartDesign::Pocket", "Pocket013")
pocket14.Profile = sketch21
pocket14.Length = 15
pocket14.Reversed = True

# Sketch on XY plane
sketch22 = body.newObject("Sketcher::SketchObject", "Sketch021")
sketch22.AttachmentSupport = (doc.getObject("XY_Plane"), [""])
sketch22.MapMode = "FlatFace"
sketch22.AttachmentOffset = App.Placement(V(0, 0, -5), App.Rotation())
sketch22.addGeometry(Part.Circle(V(-22.5, 5, 0), V(0, 0, 1), 2.7), False)
sketch22.addConstraint([
    Sketcher.Constraint("Diameter", 0, Q("5.4 mm")),
    Sketcher.Constraint("DistanceY", -1, 1, 0, 3, Q("5 mm")),
    Sketcher.Constraint("DistanceX", 0, 3, -1, 1, Q("22.5 mm")),
])
pocket15 = body.newObject("PartDesign::Pocket", "Pocket014")
pocket15.Profile = sketch22
pocket15.Type = "ThroughAll"
pocket15.Midplane = True

doc.recompute()
